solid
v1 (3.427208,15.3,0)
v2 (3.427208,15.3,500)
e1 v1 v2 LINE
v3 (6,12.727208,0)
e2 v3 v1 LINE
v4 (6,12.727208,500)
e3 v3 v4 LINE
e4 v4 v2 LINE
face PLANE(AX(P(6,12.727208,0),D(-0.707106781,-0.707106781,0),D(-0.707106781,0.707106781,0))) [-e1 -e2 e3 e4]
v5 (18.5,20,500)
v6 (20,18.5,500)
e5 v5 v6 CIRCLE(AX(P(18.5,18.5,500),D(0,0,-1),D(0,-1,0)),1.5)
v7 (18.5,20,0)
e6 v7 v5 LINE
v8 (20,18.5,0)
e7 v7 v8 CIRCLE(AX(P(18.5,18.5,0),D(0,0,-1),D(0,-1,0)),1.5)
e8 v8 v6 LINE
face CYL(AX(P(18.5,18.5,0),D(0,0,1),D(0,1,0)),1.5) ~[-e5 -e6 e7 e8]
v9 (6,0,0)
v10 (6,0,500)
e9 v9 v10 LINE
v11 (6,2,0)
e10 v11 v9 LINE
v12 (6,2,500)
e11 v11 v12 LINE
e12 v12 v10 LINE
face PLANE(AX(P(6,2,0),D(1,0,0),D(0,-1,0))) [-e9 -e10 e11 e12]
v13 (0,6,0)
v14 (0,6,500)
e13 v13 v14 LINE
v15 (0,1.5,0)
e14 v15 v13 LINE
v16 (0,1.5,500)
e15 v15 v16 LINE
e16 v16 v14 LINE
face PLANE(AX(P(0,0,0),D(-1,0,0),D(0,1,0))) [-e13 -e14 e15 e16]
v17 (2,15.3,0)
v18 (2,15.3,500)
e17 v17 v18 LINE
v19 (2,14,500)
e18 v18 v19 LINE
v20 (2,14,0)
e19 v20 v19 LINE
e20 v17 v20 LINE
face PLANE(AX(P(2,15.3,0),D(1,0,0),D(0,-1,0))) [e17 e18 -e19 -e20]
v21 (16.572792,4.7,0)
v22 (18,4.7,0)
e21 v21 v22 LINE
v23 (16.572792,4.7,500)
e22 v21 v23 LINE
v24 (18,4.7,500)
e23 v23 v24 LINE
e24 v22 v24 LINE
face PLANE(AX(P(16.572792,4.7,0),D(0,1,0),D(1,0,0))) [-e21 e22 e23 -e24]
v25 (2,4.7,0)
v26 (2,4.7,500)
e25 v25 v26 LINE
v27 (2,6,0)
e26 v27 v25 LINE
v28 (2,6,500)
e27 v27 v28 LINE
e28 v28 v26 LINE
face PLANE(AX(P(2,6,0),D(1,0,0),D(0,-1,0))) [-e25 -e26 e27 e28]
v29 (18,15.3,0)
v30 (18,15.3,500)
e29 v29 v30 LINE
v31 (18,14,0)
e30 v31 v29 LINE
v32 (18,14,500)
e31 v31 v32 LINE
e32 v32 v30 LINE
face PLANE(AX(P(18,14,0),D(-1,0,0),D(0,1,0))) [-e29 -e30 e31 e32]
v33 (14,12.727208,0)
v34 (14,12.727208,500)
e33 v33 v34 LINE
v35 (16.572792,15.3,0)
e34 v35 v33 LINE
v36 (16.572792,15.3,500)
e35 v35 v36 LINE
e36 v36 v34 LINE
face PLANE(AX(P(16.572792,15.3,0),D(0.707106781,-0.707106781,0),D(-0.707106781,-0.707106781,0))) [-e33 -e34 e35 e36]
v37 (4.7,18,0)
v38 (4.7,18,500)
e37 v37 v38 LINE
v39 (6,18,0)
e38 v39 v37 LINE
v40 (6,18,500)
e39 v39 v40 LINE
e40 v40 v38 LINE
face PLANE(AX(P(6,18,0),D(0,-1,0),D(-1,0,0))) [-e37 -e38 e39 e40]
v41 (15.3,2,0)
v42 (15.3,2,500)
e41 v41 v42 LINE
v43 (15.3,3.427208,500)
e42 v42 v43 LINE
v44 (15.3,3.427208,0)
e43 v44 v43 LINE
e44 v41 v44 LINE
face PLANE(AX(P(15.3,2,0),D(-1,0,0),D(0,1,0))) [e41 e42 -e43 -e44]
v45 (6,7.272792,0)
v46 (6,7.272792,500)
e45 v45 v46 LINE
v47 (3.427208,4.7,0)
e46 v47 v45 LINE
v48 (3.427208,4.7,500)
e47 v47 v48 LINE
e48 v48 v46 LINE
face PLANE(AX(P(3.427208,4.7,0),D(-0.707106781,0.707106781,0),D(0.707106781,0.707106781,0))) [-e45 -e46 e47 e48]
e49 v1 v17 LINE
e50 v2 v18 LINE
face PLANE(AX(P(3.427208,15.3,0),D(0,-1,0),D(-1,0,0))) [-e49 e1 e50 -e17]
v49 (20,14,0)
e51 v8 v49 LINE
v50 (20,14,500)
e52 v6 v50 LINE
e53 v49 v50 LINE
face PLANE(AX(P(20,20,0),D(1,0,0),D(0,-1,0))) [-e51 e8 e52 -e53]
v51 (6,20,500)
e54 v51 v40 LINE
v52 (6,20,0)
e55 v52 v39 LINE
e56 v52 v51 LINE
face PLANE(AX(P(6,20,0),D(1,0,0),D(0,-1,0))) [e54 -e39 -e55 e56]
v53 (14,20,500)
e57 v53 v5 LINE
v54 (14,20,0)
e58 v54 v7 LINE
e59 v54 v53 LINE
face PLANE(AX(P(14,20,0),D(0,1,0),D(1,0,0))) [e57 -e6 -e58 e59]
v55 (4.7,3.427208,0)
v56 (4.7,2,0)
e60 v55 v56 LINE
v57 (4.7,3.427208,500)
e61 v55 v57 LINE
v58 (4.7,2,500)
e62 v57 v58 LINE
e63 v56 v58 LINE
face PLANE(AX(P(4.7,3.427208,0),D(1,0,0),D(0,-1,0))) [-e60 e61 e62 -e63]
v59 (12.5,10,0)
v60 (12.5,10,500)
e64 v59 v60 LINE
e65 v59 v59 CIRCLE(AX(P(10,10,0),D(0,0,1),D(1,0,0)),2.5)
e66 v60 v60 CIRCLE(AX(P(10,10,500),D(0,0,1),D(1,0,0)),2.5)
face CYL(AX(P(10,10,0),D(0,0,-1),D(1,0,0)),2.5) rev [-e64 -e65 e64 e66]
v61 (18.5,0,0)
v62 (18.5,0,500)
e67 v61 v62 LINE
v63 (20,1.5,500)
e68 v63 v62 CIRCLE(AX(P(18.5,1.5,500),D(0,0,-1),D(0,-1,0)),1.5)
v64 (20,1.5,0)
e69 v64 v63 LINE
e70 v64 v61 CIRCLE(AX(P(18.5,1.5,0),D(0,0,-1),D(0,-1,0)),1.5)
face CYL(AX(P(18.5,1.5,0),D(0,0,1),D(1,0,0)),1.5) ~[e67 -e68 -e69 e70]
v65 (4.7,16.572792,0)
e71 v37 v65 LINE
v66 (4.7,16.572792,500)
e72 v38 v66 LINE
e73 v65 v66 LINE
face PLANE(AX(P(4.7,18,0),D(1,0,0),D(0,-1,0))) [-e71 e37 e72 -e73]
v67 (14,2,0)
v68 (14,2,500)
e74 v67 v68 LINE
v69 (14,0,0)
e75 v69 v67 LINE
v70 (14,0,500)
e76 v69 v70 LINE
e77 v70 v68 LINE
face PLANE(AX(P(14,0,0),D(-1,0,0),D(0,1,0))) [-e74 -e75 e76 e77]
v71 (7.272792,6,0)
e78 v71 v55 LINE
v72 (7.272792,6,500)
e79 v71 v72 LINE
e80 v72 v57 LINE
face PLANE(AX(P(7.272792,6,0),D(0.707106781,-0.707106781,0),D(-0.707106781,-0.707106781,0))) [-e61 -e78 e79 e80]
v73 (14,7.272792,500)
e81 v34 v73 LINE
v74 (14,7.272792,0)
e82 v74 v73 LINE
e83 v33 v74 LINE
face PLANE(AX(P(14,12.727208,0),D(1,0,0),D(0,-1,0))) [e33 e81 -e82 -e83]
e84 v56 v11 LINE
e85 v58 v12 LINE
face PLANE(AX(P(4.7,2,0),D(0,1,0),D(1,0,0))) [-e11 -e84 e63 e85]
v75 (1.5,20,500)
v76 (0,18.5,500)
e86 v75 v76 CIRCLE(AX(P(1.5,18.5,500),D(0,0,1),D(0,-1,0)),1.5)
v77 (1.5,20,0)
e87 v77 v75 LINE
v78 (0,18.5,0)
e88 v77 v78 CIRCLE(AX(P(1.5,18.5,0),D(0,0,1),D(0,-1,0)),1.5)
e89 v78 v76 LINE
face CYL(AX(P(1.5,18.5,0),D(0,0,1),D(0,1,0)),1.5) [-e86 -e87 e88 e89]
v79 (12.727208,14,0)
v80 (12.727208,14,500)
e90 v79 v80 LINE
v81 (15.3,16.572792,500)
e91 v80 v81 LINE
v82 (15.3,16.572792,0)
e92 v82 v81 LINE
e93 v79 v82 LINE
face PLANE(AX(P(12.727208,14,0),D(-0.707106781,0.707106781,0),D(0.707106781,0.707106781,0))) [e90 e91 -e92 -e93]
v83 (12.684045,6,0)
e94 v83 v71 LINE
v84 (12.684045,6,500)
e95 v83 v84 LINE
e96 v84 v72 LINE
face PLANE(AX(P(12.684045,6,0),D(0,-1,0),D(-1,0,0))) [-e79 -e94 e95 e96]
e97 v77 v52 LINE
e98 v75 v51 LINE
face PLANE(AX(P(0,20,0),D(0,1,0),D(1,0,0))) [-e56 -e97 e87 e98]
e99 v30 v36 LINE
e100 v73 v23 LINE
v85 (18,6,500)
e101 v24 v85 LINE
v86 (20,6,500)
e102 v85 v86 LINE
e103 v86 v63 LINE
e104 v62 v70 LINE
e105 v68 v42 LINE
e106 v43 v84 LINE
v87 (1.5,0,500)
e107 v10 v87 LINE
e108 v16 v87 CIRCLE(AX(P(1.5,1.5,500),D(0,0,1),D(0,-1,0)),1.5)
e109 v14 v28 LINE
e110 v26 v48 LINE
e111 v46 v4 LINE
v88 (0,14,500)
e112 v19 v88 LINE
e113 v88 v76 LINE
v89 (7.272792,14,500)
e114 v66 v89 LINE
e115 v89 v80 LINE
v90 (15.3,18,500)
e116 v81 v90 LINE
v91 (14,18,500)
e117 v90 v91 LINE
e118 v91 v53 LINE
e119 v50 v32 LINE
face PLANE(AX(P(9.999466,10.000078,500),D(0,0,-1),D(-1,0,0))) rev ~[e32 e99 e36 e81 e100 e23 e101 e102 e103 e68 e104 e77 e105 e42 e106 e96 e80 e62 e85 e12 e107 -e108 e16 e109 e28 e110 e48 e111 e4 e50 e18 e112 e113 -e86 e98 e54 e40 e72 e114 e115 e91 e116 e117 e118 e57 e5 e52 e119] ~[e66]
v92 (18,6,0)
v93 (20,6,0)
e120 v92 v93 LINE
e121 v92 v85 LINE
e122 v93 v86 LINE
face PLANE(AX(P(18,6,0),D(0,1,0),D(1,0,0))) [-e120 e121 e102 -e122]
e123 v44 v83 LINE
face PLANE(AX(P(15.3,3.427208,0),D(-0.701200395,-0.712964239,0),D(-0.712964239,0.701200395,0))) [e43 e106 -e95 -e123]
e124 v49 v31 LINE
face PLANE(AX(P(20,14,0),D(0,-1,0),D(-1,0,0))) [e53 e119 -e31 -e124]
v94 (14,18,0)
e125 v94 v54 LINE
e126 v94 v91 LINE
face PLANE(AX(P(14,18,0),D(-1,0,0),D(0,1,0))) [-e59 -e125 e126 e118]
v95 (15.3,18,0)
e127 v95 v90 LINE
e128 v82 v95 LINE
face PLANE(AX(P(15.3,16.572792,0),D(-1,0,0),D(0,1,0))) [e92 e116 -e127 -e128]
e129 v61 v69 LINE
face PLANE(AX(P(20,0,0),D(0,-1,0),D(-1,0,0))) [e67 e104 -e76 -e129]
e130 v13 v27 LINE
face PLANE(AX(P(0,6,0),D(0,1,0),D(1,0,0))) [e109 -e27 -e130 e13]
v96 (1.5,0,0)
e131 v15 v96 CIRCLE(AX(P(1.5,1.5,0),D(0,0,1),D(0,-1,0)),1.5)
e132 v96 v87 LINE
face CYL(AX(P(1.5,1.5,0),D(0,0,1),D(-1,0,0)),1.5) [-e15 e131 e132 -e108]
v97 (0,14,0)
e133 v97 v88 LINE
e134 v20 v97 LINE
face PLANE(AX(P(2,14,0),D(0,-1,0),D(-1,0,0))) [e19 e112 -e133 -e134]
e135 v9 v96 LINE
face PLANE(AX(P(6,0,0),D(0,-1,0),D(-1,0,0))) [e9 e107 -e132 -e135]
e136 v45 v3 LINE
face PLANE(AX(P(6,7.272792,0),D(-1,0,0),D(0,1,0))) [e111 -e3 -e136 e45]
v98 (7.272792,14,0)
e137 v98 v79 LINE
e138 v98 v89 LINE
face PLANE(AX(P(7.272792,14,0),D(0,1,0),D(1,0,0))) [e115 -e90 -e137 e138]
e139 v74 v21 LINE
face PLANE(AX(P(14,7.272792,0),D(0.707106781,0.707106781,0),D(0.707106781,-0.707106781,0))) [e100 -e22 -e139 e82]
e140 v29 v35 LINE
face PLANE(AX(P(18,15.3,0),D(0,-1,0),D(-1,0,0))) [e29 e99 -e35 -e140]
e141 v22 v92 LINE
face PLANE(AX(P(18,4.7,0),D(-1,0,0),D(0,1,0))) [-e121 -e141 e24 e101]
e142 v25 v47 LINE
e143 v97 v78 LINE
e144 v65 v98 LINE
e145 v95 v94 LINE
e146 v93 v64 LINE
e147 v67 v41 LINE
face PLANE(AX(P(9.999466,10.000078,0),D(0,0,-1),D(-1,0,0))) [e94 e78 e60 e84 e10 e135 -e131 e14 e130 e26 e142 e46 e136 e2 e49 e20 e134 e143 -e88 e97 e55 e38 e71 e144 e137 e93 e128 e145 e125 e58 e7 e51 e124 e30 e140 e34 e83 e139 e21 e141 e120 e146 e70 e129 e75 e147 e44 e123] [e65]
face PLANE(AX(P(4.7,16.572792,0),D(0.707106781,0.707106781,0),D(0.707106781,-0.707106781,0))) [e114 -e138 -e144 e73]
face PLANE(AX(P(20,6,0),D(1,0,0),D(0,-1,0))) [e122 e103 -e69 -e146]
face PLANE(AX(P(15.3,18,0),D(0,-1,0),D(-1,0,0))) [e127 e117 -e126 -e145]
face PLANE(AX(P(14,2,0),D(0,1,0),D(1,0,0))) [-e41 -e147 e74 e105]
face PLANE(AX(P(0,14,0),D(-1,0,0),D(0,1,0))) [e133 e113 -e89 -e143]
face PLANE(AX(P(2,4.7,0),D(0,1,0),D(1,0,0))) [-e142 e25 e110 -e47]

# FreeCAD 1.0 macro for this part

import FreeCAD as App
import Part
import Sketcher

V = App.Vector
Q = App.Units.Quantity


def edges_at(feature, points):
    """Names of the edges that pass closest to the given points."""
    edges = feature.Shape.Edges
    near = lambda p: min(range(len(edges)), key=lambda i: edges[i].distToShape(Part.Vertex(*p))[0])
    return sorted({f"Edge{near(p) + 1}" for p in points})

doc = App.newDocument("Part")
body = doc.addObject("PartDesign::Body", "Body")

sketch1 = body.newObject("Sketcher::SketchObject", "Sketch")
sketch1.AttachmentSupport = (doc.getObject("XY_Plane"), [""])
sketch1.MapMode = "FlatFace"
sketch1.addGeometry(Part.LineSegment(V(20, 20, 0), V(14, 20, 0)), False)
sketch1.addGeometry(Part.LineSegment(V(14, 20, 0), V(14, 18, 0)), False)
sketch1.addGeometry(Part.LineSegment(V(14, 18, 0), V(15.3, 18, 0)), False)
sketch1.addGeometry(Part.LineSegment(V(15.3, 18, 0), V(15.3, 16.6, 0)), False)
sketch1.addGeometry(Part.LineSegment(V(15.3, 16.6, 0), V(12.7, 14, 0)), False)
sketch1.addGeometry(Part.LineSegment(V(12.7, 14, 0), V(7.3, 14, 0)), False)
sketch1.addGeometry(Part.LineSegment(V(7.3, 14, 0), V(4.7, 16.6, 0)), False)
sketch1.addGeometry(Part.LineSegment(V(4.7, 16.6, 0), V(4.7, 18, 0)), False)
sketch1.addGeometry(Part.LineSegment(V(4.7, 18, 0), V(6, 18, 0)), False)
sketch1.addGeometry(Part.LineSegment(V(6, 18, 0), V(6, 20, 0)), False)
sketch1.addGeometry(Part.LineSegment(V(6, 20, 0), V(0, 20, 0)), False)
sketch1.addGeometry(Part.LineSegment(V(0, 20, 0), V(0, 14, 0)), False)
sketch1.addGeometry(Part.LineSegment(V(0, 14, 0), V(2, 14, 0)), False)
sketch1.addGeometry(Part.LineSegment(V(2, 14, 0), V(2, 15.3, 0)), False)
sketch1.addGeometry(Part.LineSegment(V(2, 15.3, 0), V(3.4, 15.3, 0)), False)
sketch1.addGeometry(Part.LineSegment(V(3.4, 15.3, 0), V(6, 12.7, 0)), False)
sketch1.addGeometry(Part.LineSegment(V(6, 12.7, 0), V(6, 7.3, 0)), False)
sketch1.addGeometry(Part.LineSegment(V(6, 7.3, 0), V(3.4, 4.7, 0)), False)
sketch1.addGeometry(Part.LineSegment(V(3.4, 4.7, 0), V(2, 4.7, 0)), False)
sketch1.addGeometry(Part.LineSegment(V(2, 4.7, 0), V(2, 6, 0)), False)
sketch1.addGeometry(Part.LineSegment(V(2, 6, 0), V(0, 6, 0)), False)
sketch1.addGeometry(Part.LineSegment(V(0, 6, 0), V(0, 0, 0)), False)
sketch1.addGeometry(Part.LineSegment(V(0, 0, 0), V(6, 0, 0)), False)
sketch1.addGeometry(Part.LineSegment(V(6, 0, 0), V(6, 2, 0)), False)
sketch1.addGeometry(Part.LineSegment(V(6, 2, 0), V(4.7, 2, 0)), False)
sketch1.addGeometry(Part.LineSegment(V(4.7, 2, 0), V(4.7, 3.4, 0)), False)
sketch1.addGeometry(Part.LineSegment(V(4.7, 3.4, 0), V(7.3, 6, 0)), False)
sketch1.addGeometry(Part.LineSegment(V(7.3, 6, 0), V(12.7, 6, 0)), False)
sketch1.addGeometry(Part.LineSegment(V(12.7, 6, 0), V(15.3, 3.4, 0)), False)
sketch1.addGeometry(Part.LineSegment(V(15.3, 3.4, 0), V(15.3, 2, 0)), False)
sketch1.addGeometry(Part.LineSegment(V(15.3, 2, 0), V(14, 2, 0)), False)
sketch1.addGeometry(Part.LineSegment(V(14, 2, 0), V(14, 0, 0)), False)
sketch1.addGeometry(Part.LineSegment(V(14, 0, 0), V(20, 0, 0)), False)
sketch1.addGeometry(Part.LineSegment(V(20, 0, 0), V(20, 6, 0)), False)
sketch1.addGeometry(Part.LineSegment(V(20, 6, 0), V(18, 6, 0)), False)
sketch1.addGeometry(Part.LineSegment(V(18, 6, 0), V(18, 4.7, 0)), False)
sketch1.addGeometry(Part.LineSegment(V(18, 4.7, 0), V(16.6, 4.7, 0)), False)
sketch1.addGeometry(Part.LineSegment(V(16.6, 4.7, 0), V(14, 7.3, 0)), False)
sketch1.addGeometry(Part.LineSegment(V(14, 7.3, 0), V(14, 12.7, 0)), False)
sketch1.addGeometry(Part.LineSegment(V(14, 12.7, 0), V(16.6, 15.3, 0)), False)
sketch1.addGeometry(Part.LineSegment(V(16.6, 15.3, 0), V(18, 15.3, 0)), False)
sketch1.addGeometry(Part.LineSegment(V(18, 15.3, 0), V(18, 14, 0)), False)
sketch1.addGeometry(Part.LineSegment(V(18, 14, 0), V(20, 14, 0)), False)
sketch1.addGeometry(Part.LineSegment(V(20, 14, 0), V(20, 20, 0)), False)
sketch1.addGeometry(Part.Circle(V(10, 10, 0), V(0, 0, 1), 2.5), False)
sketch1.addConstraint(Sketcher.Constraint("Coincident", 0, 2, 1, 1))
sketch1.addConstraint(Sketcher.Constraint("Coincident", 1, 2, 2, 1))
sketch1.addConstraint(Sketcher.Constraint("Coincident", 2, 2, 3, 1))
sketch1.addConstraint(Sketcher.Constraint("Coincident", 3, 2, 4, 1))
sketch1.addConstraint(Sketcher.Constraint("Coincident", 4, 2, 5, 1))
sketch1.addConstraint(Sketcher.Constraint("Coincident", 5, 2, 6, 1))
sketch1.addConstraint(Sketcher.Constraint("Coincident", 6, 2, 7, 1))
sketch1.addConstraint(Sketcher.Constraint("Coincident", 7, 2, 8, 1))
sketch1.addConstraint(Sketcher.Constraint("Coincident", 8, 2, 9, 1))
sketch1.addConstraint(Sketcher.Constraint("Coincident", 9, 2, 10, 1))
sketch1.addConstraint(Sketcher.Constraint("Coincident", 10, 2, 11, 1))
sketch1.addConstraint(Sketcher.Constraint("Coincident", 11, 2, 12, 1))
sketch1.addConstraint(Sketcher.Constraint("Coincident", 12, 2, 13, 1))
sketch1.addConstraint(Sketcher.Constraint("Coincident", 13, 2, 14, 1))
sketch1.addConstraint(Sketcher.Constraint("Coincident", 14, 2, 15, 1))
sketch1.addConstraint(Sketcher.Constraint("Coincident", 15, 2, 16, 1))
sketch1.addConstraint(Sketcher.Constraint("Coincident", 16, 2, 17, 1))
sketch1.addConstraint(Sketcher.Constraint("Coincident", 17, 2, 18, 1))
sketch1.addConstraint(Sketcher.Constraint("Coincident", 18, 2, 19, 1))
sketch1.addConstraint(Sketcher.Constraint("Coincident", 19, 2, 20, 1))
sketch1.addConstraint(Sketcher.Constraint("Coincident", 20, 2, 21, 1))
sketch1.addConstraint(Sketcher.Constraint("Coincident", 21, 2, 22, 1))
sketch1.addConstraint(Sketcher.Constraint("Coincident", 22, 2, 23, 1))
sketch1.addConstraint(Sketcher.Constraint("Coincident", 23, 2, 24, 1))
sketch1.addConstraint(Sketcher.Constraint("Coincident", 24, 2, 25, 1))
sketch1.addConstraint(Sketcher.Constraint("Coincident", 25, 2, 26, 1))
sketch1.addConstraint(Sketcher.Constraint("Coincident", 26, 2, 27, 1))
sketch1.addConstraint(Sketcher.Constraint("Coincident", 27, 2, 28, 1))
sketch1.addConstraint(Sketcher.Constraint("Coincident", 28, 2, 29, 1))
sketch1.addConstraint(Sketcher.Constraint("Coincident", 29, 2, 30, 1))
sketch1.addConstraint(Sketcher.Constraint("Coincident", 30, 2, 31, 1))
sketch1.addConstraint(Sketcher.Constraint("Coincident", 31, 2, 32, 1))
sketch1.addConstraint(Sketcher.Constraint("Coincident", 32, 2, 33, 1))
sketch1.addConstraint(Sketcher.Constraint("Coincident", 33, 2, 34, 1))
sketch1.addConstraint(Sketcher.Constraint("Coincident", 34, 2, 35, 1))
sketch1.addConstraint(Sketcher.Constraint("Coincident", 35, 2, 36, 1))
sketch1.addConstraint(Sketcher.Constraint("Coincident", 36, 2, 37, 1))
sketch1.addConstraint(Sketcher.Constraint("Coincident", 37, 2, 38, 1))
sketch1.addConstraint(Sketcher.Constraint("Coincident", 38, 2, 39, 1))
sketch1.addConstraint(Sketcher.Constraint("Coincident", 39, 2, 40, 1))
sketch1.addConstraint(Sketcher.Constraint("Coincident", 40, 2, 41, 1))
sketch1.addConstraint(Sketcher.Constraint("Coincident", 41, 2, 42, 1))
sketch1.addConstraint(Sketcher.Constraint("Coincident", 42, 2, 43, 1))
sketch1.addConstraint(Sketcher.Constraint("Coincident", 43, 2, 0, 1))
sketch1.addConstraint(Sketcher.Constraint("Horizontal", 0))
sketch1.addConstraint(Sketcher.Constraint("Vertical", 1))
sketch1.addConstraint(Sketcher.Constraint("Horizontal", 2))
sketch1.addConstraint(Sketcher.Constraint("Vertical", 3))
sketch1.addConstraint(Sketcher.Constraint("Horizontal", 5))
sketch1.addConstraint(Sketcher.Constraint("Vertical", 7))
sketch1.addConstraint(Sketcher.Constraint("Horizontal", 8))
sketch1.addConstraint(Sketcher.Constraint("Vertical", 9))
sketch1.addConstraint(Sketcher.Constraint("Horizontal", 10))
sketch1.addConstraint(Sketcher.Constraint("Vertical", 11))
sketch1.addConstraint(Sketcher.Constraint("Horizontal", 12))
sketch1.addConstraint(Sketcher.Constraint("Vertical", 13))
sketch1.addConstraint(Sketcher.Constraint("Horizontal", 14))
sketch1.addConstraint(Sketcher.Constraint("Vertical", 16))
sketch1.addConstraint(Sketcher.Constraint("Horizontal", 18))
sketch1.addConstraint(Sketcher.Constraint("Vertical", 19))
sketch1.addConstraint(Sketcher.Constraint("Horizontal", 20))
sketch1.addConstraint(Sketcher.Constraint("Vertical", 21))
sketch1.addConstraint(Sketcher.Constraint("Horizontal", 22))
sketch1.addConstraint(Sketcher.Constraint("Vertical", 23))
sketch1.addConstraint(Sketcher.Constraint("Horizontal", 24))
sketch1.addConstraint(Sketcher.Constraint("Vertical", 25))
sketch1.addConstraint(Sketcher.Constraint("Horizontal", 27))
sketch1.addConstraint(Sketcher.Constraint("Vertical", 29))
sketch1.addConstraint(Sketcher.Constraint("Horizontal", 30))
sketch1.addConstraint(Sketcher.Constraint("Vertical", 31))
sketch1.addConstraint(Sketcher.Constraint("Horizontal", 32))
sketch1.addConstraint(Sketcher.Constraint("Vertical", 33))
sketch1.addConstraint(Sketcher.Constraint("Horizontal", 34))
sketch1.addConstraint(Sketcher.Constraint("Vertical", 35))
sketch1.addConstraint(Sketcher.Constraint("Horizontal", 36))
sketch1.addConstraint(Sketcher.Constraint("Vertical", 38))
sketch1.addConstraint(Sketcher.Constraint("Horizontal", 40))
sketch1.addConstraint(Sketcher.Constraint("Vertical", 41))
sketch1.addConstraint(Sketcher.Constraint("Horizontal", 42))
sketch1.addConstraint(Sketcher.Constraint("Vertical", 43))
sketch1.addConstraint(Sketcher.Constraint("Coincident", 21, 2, -1, 1))
sketch1.addConstraint(Sketcher.Constraint("PointOnObject", 10, 2, -2))
sketch1.addConstraint(Sketcher.Constraint("PointOnObject", 31, 2, -1))
sketch1.addConstraint(Sketcher.Constraint("Perpendicular", 4, 6))
sketch1.addConstraint(Sketcher.Constraint("Parallel", 6, 15))
sketch1.addConstraint(Sketcher.Constraint("Perpendicular", 15, 17))
sketch1.addConstraint(Sketcher.Constraint("Parallel", 17, 26))
sketch1.addConstraint(Sketcher.Constraint("Perpendicular", 26, 37))
sketch1.addConstraint(Sketcher.Constraint("Perpendicular", 37, 39))
sketch1.addConstraint(Sketcher.Constraint("Horizontal", 3, 2, 6, 2))
sketch1.addConstraint(Sketcher.Constraint("Horizontal", 2, 2, 7, 2))
sketch1.addConstraint(Sketcher.Constraint("Horizontal", 0, 2, 9, 2))
sketch1.addConstraint(Sketcher.Constraint("Horizontal", 5, 2, 11, 2))
sketch1.addConstraint(Sketcher.Constraint("Horizontal", 20, 2, 26, 2))
sketch1.addConstraint(Sketcher.Constraint("Horizontal", 25, 2, 28, 2))
sketch1.addConstraint(Sketcher.Constraint("Horizontal", 24, 2, 29, 2))
sketch1.addConstraint(Sketcher.Constraint("Horizontal", 27, 2, 33, 2))
sketch1.addConstraint(Sketcher.Constraint("Horizontal", 18, 2, 35, 2))
sketch1.addConstraint(Sketcher.Constraint("Horizontal", 16, 2, 37, 2))
sketch1.addConstraint(Sketcher.Constraint("Horizontal", 15, 2, 38, 2))
sketch1.addConstraint(Sketcher.Constraint("Horizontal", 14, 2, 39, 2))
sketch1.addConstraint(Sketcher.Constraint("Horizontal", 12, 2, 41, 2))
sketch1.addConstraint(Sketcher.Constraint("Vertical", 9, 2, 15, 2))
sketch1.addConstraint(Sketcher.Constraint("Vertical", 14, 2, 17, 2))
sketch1.addConstraint(Sketcher.Constraint("Vertical", 13, 2, 18, 2))
sketch1.addConstraint(Sketcher.Constraint("Vertical", 16, 2, 22, 2))
sketch1.addConstraint(Sketcher.Constraint("Vertical", 7, 2, 24, 2))
sketch1.addConstraint(Sketcher.Constraint("Vertical", 5, 2, 26, 2))
sketch1.addConstraint(Sketcher.Constraint("Vertical", 3, 2, 28, 2))
sketch1.addConstraint(Sketcher.Constraint("Vertical", 1, 2, 30, 2))
sketch1.addConstraint(Sketcher.Constraint("Vertical", 31, 2, 37, 2))
sketch1.addConstraint(Sketcher.Constraint("Vertical", 36, 2, 39, 2))
sketch1.addConstraint(Sketcher.Constraint("Vertical", 35, 2, 40, 2))
sketch1.addConstraint(Sketcher.Constraint("Vertical", 33, 2, 42, 2))
sketch1.addConstraint(Sketcher.Constraint("Equal", 2, 8))
sketch1.addConstraint(Sketcher.Constraint("Equal", 0, 10))
sketch1.addConstraint(Sketcher.Constraint("Equal", 20, 34))
sketch1.addConstraint(Sketcher.Constraint("Equal", 42, 1))
sketch1.addConstraint(Sketcher.Constraint("Equal", 40, 3))
sketch1.addConstraint(Sketcher.Constraint("Equal", 32, 11))
sketch1.addConstraint(Sketcher.Constraint("Equal", 30, 13))
sketch1.addConstraint(Sketcher.Constraint("Equal", 5, 16))
sketch1.addConstraint(Sketcher.Constraint("Equal", 13, 19))
sketch1.addConstraint(Sketcher.Constraint("Equal", 11, 21))
sketch1.addConstraint(Sketcher.Constraint("Equal", 9, 23))
sketch1.addConstraint(Sketcher.Constraint("Diameter", 44, Q("5 mm")))
sketch1.addConstraint(Sketcher.Constraint("DistanceX", 0, 2, 0, 1, Q("6 mm")))
sketch1.addConstraint(Sketcher.Constraint("DistanceX", 12, 1, 12, 2, Q("2 mm")))
sketch1.addConstraint(Sketcher.Constraint("DistanceX", 2, 1, 2, 2, Q("1.3 mm")))
sketch1.addConstraint(Sketcher.Constraint("DistanceX", -1, 1, 44, 3, Q("10 mm")))
sketch1.addConstraint(Sketcher.Constraint("DistanceY", -1, 1, 44, 3, Q("10 mm")))
sketch1.addConstraint(Sketcher.Constraint("DistanceX", -1, 1, 0, 2, Q("14 mm")))
sketch1.addConstraint(Sketcher.Constraint("DistanceX", 5, 2, 5, 1, Q("5.454416 mm")))
sketch1.addConstraint(Sketcher.Constraint("DistanceX", 27, 1, 27, 2, Q("5.411253 mm")))
pad1 = body.newObject("PartDesign::Pad", "Pad")
pad1.Profile = sketch1
pad1.Length = 500
doc.recompute()

fillet = body.newObject("PartDesign::Fillet", "Fillet")
fillet.Base = (pad1, edges_at(pad1, [
    (0, 20, 250),
    (20, 20, 250),
    (20, 0, 250),
    (0, 0, 250),
]))
fillet.Radius = 1.5

doc.recompute()
